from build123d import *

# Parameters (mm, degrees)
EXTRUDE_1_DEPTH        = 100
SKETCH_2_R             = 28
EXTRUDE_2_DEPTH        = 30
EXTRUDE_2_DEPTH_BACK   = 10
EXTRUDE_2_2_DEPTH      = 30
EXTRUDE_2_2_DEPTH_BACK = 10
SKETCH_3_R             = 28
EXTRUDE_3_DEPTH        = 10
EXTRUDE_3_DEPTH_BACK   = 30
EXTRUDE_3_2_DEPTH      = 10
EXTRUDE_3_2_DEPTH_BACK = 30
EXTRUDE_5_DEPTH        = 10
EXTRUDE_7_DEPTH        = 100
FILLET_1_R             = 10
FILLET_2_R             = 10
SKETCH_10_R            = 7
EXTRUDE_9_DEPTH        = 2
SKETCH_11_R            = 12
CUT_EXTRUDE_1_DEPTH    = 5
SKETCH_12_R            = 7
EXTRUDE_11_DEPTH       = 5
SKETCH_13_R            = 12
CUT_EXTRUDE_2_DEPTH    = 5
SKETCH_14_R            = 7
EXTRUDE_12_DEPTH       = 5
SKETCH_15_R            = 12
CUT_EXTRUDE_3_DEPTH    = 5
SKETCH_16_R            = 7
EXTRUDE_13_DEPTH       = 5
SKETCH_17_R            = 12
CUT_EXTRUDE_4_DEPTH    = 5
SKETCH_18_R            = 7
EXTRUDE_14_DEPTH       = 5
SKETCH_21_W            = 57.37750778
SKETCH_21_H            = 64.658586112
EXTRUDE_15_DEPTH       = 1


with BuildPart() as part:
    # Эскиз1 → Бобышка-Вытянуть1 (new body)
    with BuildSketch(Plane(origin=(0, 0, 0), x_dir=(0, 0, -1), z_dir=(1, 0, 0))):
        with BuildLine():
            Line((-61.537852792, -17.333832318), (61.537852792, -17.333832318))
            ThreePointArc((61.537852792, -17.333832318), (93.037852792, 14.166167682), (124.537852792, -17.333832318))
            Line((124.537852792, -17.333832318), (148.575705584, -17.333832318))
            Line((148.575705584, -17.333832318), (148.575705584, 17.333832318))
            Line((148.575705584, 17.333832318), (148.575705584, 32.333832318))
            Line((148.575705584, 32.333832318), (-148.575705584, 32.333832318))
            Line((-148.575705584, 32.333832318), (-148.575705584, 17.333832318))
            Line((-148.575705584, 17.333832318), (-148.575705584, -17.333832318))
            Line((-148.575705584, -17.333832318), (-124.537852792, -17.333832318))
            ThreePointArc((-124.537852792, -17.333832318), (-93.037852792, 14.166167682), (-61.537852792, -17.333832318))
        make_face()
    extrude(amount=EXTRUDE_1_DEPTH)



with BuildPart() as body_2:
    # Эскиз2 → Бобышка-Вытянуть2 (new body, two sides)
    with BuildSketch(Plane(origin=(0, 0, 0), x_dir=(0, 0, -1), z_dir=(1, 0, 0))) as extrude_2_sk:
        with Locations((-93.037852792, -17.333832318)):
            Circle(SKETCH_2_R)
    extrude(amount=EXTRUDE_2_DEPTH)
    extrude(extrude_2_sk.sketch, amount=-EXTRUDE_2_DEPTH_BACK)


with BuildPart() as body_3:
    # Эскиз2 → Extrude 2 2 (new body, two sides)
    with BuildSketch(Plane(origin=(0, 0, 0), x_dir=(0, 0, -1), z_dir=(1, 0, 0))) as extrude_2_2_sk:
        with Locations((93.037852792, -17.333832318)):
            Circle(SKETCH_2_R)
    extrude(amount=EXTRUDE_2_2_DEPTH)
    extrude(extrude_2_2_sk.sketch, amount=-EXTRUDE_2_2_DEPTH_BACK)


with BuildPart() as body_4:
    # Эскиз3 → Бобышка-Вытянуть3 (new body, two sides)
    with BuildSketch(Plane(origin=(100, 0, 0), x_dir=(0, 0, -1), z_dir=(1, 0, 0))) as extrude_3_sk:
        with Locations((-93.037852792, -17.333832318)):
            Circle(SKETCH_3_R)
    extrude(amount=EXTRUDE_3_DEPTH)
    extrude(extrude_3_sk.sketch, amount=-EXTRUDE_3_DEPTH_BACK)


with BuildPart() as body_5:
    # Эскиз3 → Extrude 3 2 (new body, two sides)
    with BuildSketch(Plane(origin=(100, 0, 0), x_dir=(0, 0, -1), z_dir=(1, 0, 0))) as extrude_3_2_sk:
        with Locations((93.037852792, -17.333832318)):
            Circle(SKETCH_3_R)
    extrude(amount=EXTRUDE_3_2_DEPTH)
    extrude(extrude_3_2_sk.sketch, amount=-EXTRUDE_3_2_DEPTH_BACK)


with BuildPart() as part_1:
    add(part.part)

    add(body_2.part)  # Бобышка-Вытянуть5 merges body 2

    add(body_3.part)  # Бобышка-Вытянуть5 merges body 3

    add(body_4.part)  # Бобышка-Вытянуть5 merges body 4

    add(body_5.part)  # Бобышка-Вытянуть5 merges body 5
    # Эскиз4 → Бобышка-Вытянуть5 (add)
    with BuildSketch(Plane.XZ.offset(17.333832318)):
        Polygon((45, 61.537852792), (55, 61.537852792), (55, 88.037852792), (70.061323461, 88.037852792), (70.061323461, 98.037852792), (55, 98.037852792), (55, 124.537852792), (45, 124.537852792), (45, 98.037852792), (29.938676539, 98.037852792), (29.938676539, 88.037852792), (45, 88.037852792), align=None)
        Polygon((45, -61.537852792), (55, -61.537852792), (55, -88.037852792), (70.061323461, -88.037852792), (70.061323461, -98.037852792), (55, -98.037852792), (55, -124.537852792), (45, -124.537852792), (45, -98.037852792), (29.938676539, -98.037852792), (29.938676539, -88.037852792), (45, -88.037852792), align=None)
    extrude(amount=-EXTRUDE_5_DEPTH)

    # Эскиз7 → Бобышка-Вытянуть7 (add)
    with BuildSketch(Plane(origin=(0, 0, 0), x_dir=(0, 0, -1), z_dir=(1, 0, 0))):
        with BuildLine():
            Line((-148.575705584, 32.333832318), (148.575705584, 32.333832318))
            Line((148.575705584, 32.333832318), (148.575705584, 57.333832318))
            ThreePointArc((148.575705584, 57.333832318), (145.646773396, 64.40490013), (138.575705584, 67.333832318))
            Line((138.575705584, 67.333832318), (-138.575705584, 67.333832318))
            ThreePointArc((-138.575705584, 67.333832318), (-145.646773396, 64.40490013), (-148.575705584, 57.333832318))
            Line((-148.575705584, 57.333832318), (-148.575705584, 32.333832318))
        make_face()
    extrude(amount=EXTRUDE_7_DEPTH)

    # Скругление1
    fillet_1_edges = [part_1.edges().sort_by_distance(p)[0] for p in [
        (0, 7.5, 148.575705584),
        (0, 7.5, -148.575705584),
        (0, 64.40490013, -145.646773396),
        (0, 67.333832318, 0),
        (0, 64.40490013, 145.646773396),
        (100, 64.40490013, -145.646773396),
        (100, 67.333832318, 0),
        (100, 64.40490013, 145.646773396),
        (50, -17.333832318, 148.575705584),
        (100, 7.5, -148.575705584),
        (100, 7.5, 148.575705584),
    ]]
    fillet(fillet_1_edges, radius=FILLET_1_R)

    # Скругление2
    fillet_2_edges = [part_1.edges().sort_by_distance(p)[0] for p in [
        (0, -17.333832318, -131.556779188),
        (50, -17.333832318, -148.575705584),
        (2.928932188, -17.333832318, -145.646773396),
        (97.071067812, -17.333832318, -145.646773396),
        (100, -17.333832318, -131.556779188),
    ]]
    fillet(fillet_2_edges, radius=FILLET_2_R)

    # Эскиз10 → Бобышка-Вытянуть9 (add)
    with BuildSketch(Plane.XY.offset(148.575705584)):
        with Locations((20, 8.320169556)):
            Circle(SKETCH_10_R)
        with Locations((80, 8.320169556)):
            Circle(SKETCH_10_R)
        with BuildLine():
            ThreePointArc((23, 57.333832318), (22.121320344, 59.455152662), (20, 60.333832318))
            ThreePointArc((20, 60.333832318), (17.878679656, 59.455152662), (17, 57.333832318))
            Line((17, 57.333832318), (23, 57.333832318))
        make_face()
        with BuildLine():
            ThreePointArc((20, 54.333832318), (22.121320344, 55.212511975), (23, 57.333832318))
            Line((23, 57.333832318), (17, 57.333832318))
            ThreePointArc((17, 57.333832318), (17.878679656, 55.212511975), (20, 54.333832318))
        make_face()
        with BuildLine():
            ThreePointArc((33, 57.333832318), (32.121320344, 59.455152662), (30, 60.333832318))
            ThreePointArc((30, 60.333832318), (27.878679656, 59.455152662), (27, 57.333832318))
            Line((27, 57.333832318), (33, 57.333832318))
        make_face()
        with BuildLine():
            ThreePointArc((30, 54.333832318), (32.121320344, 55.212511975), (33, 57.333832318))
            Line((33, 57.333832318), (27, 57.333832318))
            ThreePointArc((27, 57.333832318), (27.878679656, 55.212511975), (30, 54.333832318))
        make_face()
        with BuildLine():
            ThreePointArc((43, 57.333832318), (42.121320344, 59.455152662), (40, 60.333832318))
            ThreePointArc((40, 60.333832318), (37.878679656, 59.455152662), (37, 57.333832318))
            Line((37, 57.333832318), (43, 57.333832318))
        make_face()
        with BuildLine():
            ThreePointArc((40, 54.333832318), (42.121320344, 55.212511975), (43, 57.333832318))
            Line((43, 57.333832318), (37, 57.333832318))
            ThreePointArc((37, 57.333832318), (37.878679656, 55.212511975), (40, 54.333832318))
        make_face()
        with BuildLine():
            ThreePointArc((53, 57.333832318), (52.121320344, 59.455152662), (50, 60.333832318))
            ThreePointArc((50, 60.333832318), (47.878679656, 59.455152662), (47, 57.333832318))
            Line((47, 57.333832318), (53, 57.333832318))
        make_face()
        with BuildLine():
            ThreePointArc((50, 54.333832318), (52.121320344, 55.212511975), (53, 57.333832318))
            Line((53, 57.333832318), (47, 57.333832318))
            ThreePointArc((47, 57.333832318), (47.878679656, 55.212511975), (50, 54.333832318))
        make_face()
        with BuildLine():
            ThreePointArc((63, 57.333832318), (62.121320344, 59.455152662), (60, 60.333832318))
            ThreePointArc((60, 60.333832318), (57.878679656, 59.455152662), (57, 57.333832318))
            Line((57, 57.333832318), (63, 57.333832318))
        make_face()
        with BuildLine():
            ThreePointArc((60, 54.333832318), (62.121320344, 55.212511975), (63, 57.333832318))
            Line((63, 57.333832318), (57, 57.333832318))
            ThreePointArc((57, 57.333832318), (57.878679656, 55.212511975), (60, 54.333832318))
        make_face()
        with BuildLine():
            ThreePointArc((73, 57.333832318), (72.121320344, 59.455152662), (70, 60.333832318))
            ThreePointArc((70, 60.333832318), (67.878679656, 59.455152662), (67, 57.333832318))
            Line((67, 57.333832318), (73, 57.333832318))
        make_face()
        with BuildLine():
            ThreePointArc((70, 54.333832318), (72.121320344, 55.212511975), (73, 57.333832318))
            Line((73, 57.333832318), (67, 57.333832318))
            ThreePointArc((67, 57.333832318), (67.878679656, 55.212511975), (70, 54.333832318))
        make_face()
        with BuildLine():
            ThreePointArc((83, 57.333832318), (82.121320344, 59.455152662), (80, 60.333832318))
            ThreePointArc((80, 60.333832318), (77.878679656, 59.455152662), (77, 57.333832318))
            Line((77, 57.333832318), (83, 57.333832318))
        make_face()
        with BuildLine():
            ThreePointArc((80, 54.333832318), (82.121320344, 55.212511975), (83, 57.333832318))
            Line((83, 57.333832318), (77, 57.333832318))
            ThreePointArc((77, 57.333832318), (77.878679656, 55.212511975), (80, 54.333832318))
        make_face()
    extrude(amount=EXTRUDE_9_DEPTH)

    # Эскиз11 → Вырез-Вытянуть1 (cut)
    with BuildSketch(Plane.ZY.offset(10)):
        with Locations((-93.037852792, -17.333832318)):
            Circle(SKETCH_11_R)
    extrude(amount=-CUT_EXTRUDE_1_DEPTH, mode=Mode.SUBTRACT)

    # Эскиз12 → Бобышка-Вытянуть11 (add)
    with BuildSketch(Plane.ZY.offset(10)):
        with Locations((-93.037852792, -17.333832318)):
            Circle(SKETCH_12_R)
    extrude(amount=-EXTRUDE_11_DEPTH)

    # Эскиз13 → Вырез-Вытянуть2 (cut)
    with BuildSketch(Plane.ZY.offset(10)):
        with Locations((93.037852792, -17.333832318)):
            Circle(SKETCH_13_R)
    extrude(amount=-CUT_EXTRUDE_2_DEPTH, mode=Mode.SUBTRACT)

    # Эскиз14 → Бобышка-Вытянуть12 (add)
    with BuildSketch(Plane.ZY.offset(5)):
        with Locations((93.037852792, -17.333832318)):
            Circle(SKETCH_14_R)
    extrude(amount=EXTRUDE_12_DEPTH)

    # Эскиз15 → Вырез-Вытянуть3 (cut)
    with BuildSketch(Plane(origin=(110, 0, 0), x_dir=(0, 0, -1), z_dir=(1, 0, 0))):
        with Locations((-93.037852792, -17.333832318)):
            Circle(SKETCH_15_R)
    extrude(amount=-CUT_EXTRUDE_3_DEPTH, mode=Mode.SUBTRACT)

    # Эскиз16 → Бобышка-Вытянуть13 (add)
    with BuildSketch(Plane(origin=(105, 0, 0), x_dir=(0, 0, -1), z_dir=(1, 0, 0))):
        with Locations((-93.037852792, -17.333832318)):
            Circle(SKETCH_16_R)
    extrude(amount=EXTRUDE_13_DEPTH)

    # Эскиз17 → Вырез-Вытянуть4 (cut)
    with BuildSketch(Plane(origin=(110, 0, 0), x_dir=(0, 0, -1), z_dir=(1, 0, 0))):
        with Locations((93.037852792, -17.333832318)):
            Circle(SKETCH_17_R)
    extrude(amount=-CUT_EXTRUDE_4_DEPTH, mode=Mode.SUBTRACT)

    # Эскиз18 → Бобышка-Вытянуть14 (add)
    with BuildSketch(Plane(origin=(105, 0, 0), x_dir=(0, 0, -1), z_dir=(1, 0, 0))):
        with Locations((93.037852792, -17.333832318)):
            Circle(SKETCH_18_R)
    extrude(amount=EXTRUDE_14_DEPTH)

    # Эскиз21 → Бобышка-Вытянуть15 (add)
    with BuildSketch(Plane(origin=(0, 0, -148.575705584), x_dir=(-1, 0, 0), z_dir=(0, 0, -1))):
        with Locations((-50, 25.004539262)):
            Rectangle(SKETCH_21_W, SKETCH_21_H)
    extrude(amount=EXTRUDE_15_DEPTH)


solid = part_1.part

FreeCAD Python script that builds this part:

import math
import FreeCAD as App
import Part
import Sketcher


def edges_at(feature, points):
    """Names of the edges that pass closest to the given points."""
    edges = feature.Shape.Edges
    near = lambda p: min(range(len(edges)), key=lambda i: edges[i].distToShape(Part.Vertex(*p))[0])
    return sorted({f"Edge{near(p) + 1}" for p in points})


def add_polygon(sketch, points):
    """Adds a closed chain of lines whose ends are joined by coincident constraints."""
    first, n = sketch.GeometryCount, len(points)
    for a, b in zip(points, points[1:] + points[:1]):
        sketch.addGeometry(Part.LineSegment(App.Vector(*a, 0), App.Vector(*b, 0)), False)
    for i in range(n):
        sketch.addConstraint(Sketcher.Constraint("Coincident", first + i, 2, first + (i + 1) % n, 1))

doc = App.newDocument("Part")
body = doc.addObject("PartDesign::Body", "Body")

# Sketch on YZ plane
sketch1 = body.newObject("Sketcher::SketchObject", "Sketch")
sketch1.AttachmentSupport = (doc.getObject("YZ_Plane"), [""])
sketch1.MapMode = "FlatFace"
sketch1.addGeometry([
    Part.LineSegment(App.Vector(-17.333832, 61.537853, 0), App.Vector(-17.333832, -61.537853, 0)),  # 0
    Part.ArcOfCircle(Part.Circle(App.Vector(-17.333832, -93.037853, 0), App.Vector(0, 0, 1), 31.5), math.radians(-90), math.radians(90)),  # 1
    Part.LineSegment(App.Vector(-17.333832, -124.537853, 0), App.Vector(-17.333832, -148.575706, 0)),  # 2
    Part.LineSegment(App.Vector(-17.333832, -148.575706, 0), App.Vector(32.333832, -148.575706, 0)),  # 3
    Part.LineSegment(App.Vector(32.333832, -148.575706, 0), App.Vector(32.333832, 148.575706, 0)),  # 4
    Part.LineSegment(App.Vector(32.333832, 148.575706, 0), App.Vector(-17.333832, 148.575706, 0)),  # 5
    Part.LineSegment(App.Vector(-17.333832, 148.575706, 0), App.Vector(-17.333832, 124.537853, 0)),  # 6
    Part.ArcOfCircle(Part.Circle(App.Vector(-17.333832, 93.037853, 0), App.Vector(0, 0, 1), 31.5), math.radians(-90), math.radians(90)),  # 7
], False)
sketch1.addConstraint([
    Sketcher.Constraint("Coincident", 0, 2, 1, 2),
    Sketcher.Constraint("Coincident", 1, 1, 2, 1),
    Sketcher.Constraint("Coincident", 2, 2, 3, 1),
    Sketcher.Constraint("Coincident", 3, 2, 4, 1),
    Sketcher.Constraint("Coincident", 4, 2, 5, 1),
    Sketcher.Constraint("Coincident", 5, 2, 6, 1),
    Sketcher.Constraint("Coincident", 6, 2, 7, 2),
    Sketcher.Constraint("Coincident", 7, 1, 0, 1),
    Sketcher.Constraint("Vertical", 0),
    Sketcher.Constraint("Vertical", 2),
    Sketcher.Constraint("Horizontal", 3),
    Sketcher.Constraint("Vertical", 4),
    Sketcher.Constraint("Horizontal", 5),
    Sketcher.Constraint("Vertical", 6),
    Sketcher.Constraint("Equal", 1, 7),
    Sketcher.Constraint("Symmetric", 1, 3, 7, 3, -1),
    Sketcher.Constraint("Symmetric", 2, 2, 5, 2, -1),
    Sketcher.Constraint("Vertical", 7, 3, 0, 2),
    Sketcher.Constraint("Vertical", 0, 2, 1, 1),
    Sketcher.Constraint("Radius", 1, 31.5),
    Sketcher.Constraint("DistanceY", 4, 1, 4, 2, 297.151411),
    Sketcher.Constraint("DistanceX", 3, 1, 3, 2, 49.667665),
    Sketcher.Constraint("DistanceY", 0, 2, 0, 1, 123.075706),
    Sketcher.Constraint("DistanceX", 1, 3, -1, 1, 17.333832),
])
pad1 = body.newObject("PartDesign::Pad", "Pad")
pad1.Profile = sketch1
pad1.Length = 100
body2 = doc.addObject("PartDesign::Body", "Body001")

# Sketch on YZ plane
sketch2 = body2.newObject("Sketcher::SketchObject", "Sketch001")
sketch2.AttachmentSupport = (doc.getObject("YZ_Plane001"), [""])
sketch2.MapMode = "FlatFace"
sketch2.addGeometry(Part.Circle(App.Vector(-17.333832, 93.037853, 0), App.Vector(0, 0, 1), 28), False)
sketch2.addConstraint([
    Sketcher.Constraint("Diameter", 0, 56.0),
    Sketcher.Constraint("DistanceX", 0, 3, -1, 1, 17.333832),
    Sketcher.Constraint("DistanceY", -1, 1, 0, 3, 93.037853),
])
pad2 = body2.newObject("PartDesign::Pad", "Pad001")
pad2.Profile = sketch2
pad2.Type = "TwoLengths"
pad2.Length = 30
pad2.Length2 = 10
body3 = doc.addObject("PartDesign::Body", "Body002")

# Sketch on YZ plane
sketch3 = body3.newObject("Sketcher::SketchObject", "Sketch002")
sketch3.AttachmentSupport = (doc.getObject("YZ_Plane002"), [""])
sketch3.MapMode = "FlatFace"
sketch3.addGeometry(Part.Circle(App.Vector(-17.333832, -93.037853, 0), App.Vector(0, 0, 1), 28), False)
sketch3.addConstraint([
    Sketcher.Constraint("Diameter", 0, 56.0),
    Sketcher.Constraint("DistanceX", 0, 3, -1, 1, 17.333832),
    Sketcher.Constraint("DistanceY", 0, 3, -1, 1, 93.037853),
])
pad3 = body3.newObject("PartDesign::Pad", "Pad002")
pad3.Profile = sketch3
pad3.Type = "TwoLengths"
pad3.Length = 30
pad3.Length2 = 10
body4 = doc.addObject("PartDesign::Body", "Body003")

# Sketch on YZ plane
sketch4 = body4.newObject("Sketcher::SketchObject", "Sketch003")
sketch4.AttachmentSupport = (doc.getObject("YZ_Plane003"), [""])
sketch4.MapMode = "FlatFace"
sketch4.AttachmentOffset = App.Placement(App.Vector(0, 0, 100), App.Rotation())
sketch4.addGeometry(Part.Circle(App.Vector(-17.333832, 93.037853, 0), App.Vector(0, 0, 1), 28), False)
sketch4.addConstraint([
    Sketcher.Constraint("Diameter", 0, 56.0),
    Sketcher.Constraint("DistanceX", 0, 3, -1, 1, 17.333832),
    Sketcher.Constraint("DistanceY", -1, 1, 0, 3, 93.037853),
])
pad4 = body4.newObject("PartDesign::Pad", "Pad003")
pad4.Profile = sketch4
pad4.Type = "TwoLengths"
pad4.Length = 10
pad4.Length2 = 30
body5 = doc.addObject("PartDesign::Body", "Body004")

# Sketch on YZ plane
sketch5 = body5.newObject("Sketcher::SketchObject", "Sketch004")
sketch5.AttachmentSupport = (doc.getObject("YZ_Plane004"), [""])
sketch5.MapMode = "FlatFace"
sketch5.AttachmentOffset = App.Placement(App.Vector(0, 0, 100), App.Rotation())
sketch5.addGeometry(Part.Circle(App.Vector(-17.333832, -93.037853, 0), App.Vector(0, 0, 1), 28), False)
sketch5.addConstraint([
    Sketcher.Constraint("Diameter", 0, 56.0),
    Sketcher.Constraint("DistanceX", 0, 3, -1, 1, 17.333832),
    Sketcher.Constraint("DistanceY", 0, 3, -1, 1, 93.037853),
])
pad5 = body5.newObject("PartDesign::Pad", "Pad004")
pad5.Profile = sketch5
pad5.Type = "TwoLengths"
pad5.Length = 10
pad5.Length2 = 30
body.AllowCompound = True
doc.recompute()

boolean = body.newObject("PartDesign::Boolean", "Boolean")
boolean.Type = "Fuse"
boolean.addObjects([body2])
doc.recompute()

boolean2 = body.newObject("PartDesign::Boolean", "Boolean001")
boolean2.Type = "Fuse"
boolean2.addObjects([body3])
doc.recompute()

boolean3 = body.newObject("PartDesign::Boolean", "Boolean002")
boolean3.Type = "Fuse"
boolean3.addObjects([body4])
doc.recompute()

boolean4 = body.newObject("PartDesign::Boolean", "Boolean003")
boolean4.Type = "Fuse"
boolean4.addObjects([body5])

# Sketch on XZ plane
sketch6 = body.newObject("Sketcher::SketchObject", "Sketch005")
sketch6.AttachmentSupport = (doc.getObject("XZ_Plane"), [""])
sketch6.MapMode = "FlatFace"
sketch6.AttachmentOffset = App.Placement(App.Vector(0, 0, 17.333832), App.Rotation())
add_polygon(sketch6, [(45, 61.537853), (55, 61.537853), (55, 88.037853), (70.061323, 88.037853), (70.061323, 98.037853), (55, 98.037853), (55, 124.537853), (45, 124.537853), (45, 98.037853), (29.938677, 98.037853), (29.938677, 88.037853), (45, 88.037853)])  # lines 0-11
add_polygon(sketch6, [(55, -61.537853), (45, -61.537853), (45, -88.037853), (29.938677, -88.037853), (29.938677, -98.037853), (45, -98.037853), (45, -124.537853), (55, -124.537853), (55, -98.037853), (70.061323, -98.037853), (70.061323, -88.037853), (55, -88.037853)])  # lines 12-23
sketch6.addConstraint([
    Sketcher.Constraint("Horizontal", 0),
    Sketcher.Constraint("Vertical", 1),
    Sketcher.Constraint("Horizontal", 2),
    Sketcher.Constraint("Vertical", 3),
    Sketcher.Constraint("Horizontal", 4),
    Sketcher.Constraint("Vertical", 5),
    Sketcher.Constraint("Horizontal", 6),
    Sketcher.Constraint("Vertical", 7),
    Sketcher.Constraint("Horizontal", 8),
    Sketcher.Constraint("Vertical", 9),
    Sketcher.Constraint("Horizontal", 10),
    Sketcher.Constraint("Vertical", 11),
    Sketcher.Constraint("Horizontal", 12),
    Sketcher.Constraint("Vertical", 13),
    Sketcher.Constraint("Horizontal", 14),
    Sketcher.Constraint("Vertical", 15),
    Sketcher.Constraint("Horizontal", 16),
    Sketcher.Constraint("Vertical", 17),
    Sketcher.Constraint("Horizontal", 18),
    Sketcher.Constraint("Vertical", 19),
    Sketcher.Constraint("Horizontal", 20),
    Sketcher.Constraint("Vertical", 21),
    Sketcher.Constraint("Horizontal", 22),
    Sketcher.Constraint("Vertical", 23),
    Sketcher.Constraint("Symmetric", 11, 2, 12, 2, -1),
    Sketcher.Constraint("Symmetric", 9, 2, 14, 2, -1),
    Sketcher.Constraint("Symmetric", 7, 2, 16, 2, -1),
    Sketcher.Constraint("Symmetric", 5, 2, 18, 2, -1),
    Sketcher.Constraint("Symmetric", 3, 2, 20, 2, -1),
    Sketcher.Constraint("Symmetric", 1, 2, 22, 2, -1),
    Sketcher.Constraint("Horizontal", 4, 2, 7, 2),
    Sketcher.Constraint("Horizontal", 2, 2, 9, 2),
    Sketcher.Constraint("Vertical", 1, 2, 4, 2),
    Sketcher.Constraint("Vertical", 7, 2, 10, 2),
    Sketcher.Constraint("Equal", 4, 8),
    Sketcher.Constraint("Equal", 18, 3),
    Sketcher.Constraint("Equal", 1, 5),
    Sketcher.Constraint("DistanceX", 0, 1, 0, 2, 10.0),
    Sketcher.Constraint("DistanceY", 1, 1, 1, 2, 26.5),
    Sketcher.Constraint("DistanceX", -1, 1, 0, 2, 55.0),
    Sketcher.Constraint("DistanceX", 2, 1, 2, 2, 15.061323),
    Sketcher.Constraint("DistanceY", -1, 1, 0, 2, 61.537853),
])
pad6 = body.newObject("PartDesign::Pad", "Pad005")
pad6.Profile = sketch6
pad6.Length = 10
pad6.Reversed = True

# Sketch on YZ plane
sketch7 = body.newObject("Sketcher::SketchObject", "Sketch006")
sketch7.AttachmentSupport = (doc.getObject("YZ_Plane"), [""])
sketch7.MapMode = "FlatFace"
sketch7.addGeometry([
    Part.LineSegment(App.Vector(32.333832, 148.575706, 0), App.Vector(32.333832, -148.575706, 0)),  # 0
    Part.LineSegment(App.Vector(32.333832, -148.575706, 0), App.Vector(57.333832, -148.575706, 0)),  # 1
    Part.ArcOfCircle(Part.Circle(App.Vector(57.333832, -138.575706, 0), App.Vector(0, 0, 1), 10), math.radians(-90), math.radians(0)),  # 2
    Part.LineSegment(App.Vector(67.333832, -138.575706, 0), App.Vector(67.333832, 138.575706, 0)),  # 3
    Part.ArcOfCircle(Part.Circle(App.Vector(57.333832, 138.575706, 0), App.Vector(0, 0, 1), 10), math.radians(0), math.radians(90)),  # 4
    Part.LineSegment(App.Vector(57.333832, 148.575706, 0), App.Vector(32.333832, 148.575706, 0)),  # 5
], False)
sketch7.addConstraint([
    Sketcher.Constraint("Coincident", 0, 2, 1, 1),
    Sketcher.Constraint("Tangent", 1, 2, 2, 1),
    Sketcher.Constraint("Tangent", 2, 2, 3, 1),
    Sketcher.Constraint("Tangent", 3, 2, 4, 1),
    Sketcher.Constraint("Tangent", 4, 2, 5, 1),
    Sketcher.Constraint("Coincident", 5, 2, 0, 1),
    Sketcher.Constraint("Vertical", 0),
    Sketcher.Constraint("Horizontal", 1),
    Sketcher.Constraint("Vertical", 3),
    Sketcher.Constraint("Horizontal", 5),
    Sketcher.Constraint("Equal", 2, 4),
    Sketcher.Constraint("Radius", 2, 10.0),
    Sketcher.Constraint("DistanceX", 1, 1, 1, 2, 25.0),
    Sketcher.Constraint("DistanceY", 0, 2, 0, 1, 297.151411),
    Sketcher.Constraint("DistanceX", -1, 1, 2, 3, 57.333832),
    Sketcher.Constraint("DistanceY", 2, 3, -1, 1, 138.575706),
])
pad7 = body.newObject("PartDesign::Pad", "Pad006")
pad7.Profile = sketch7
pad7.Length = 100
doc.recompute()

fillet = body.newObject("PartDesign::Fillet", "Fillet")
fillet.Base = (pad7, edges_at(pad7, [
    (0, 20, 148.576),
    (0, 20, -148.576),
    (0, 64.405, -145.647),
    (0, 67.334, 0),
    (0, 64.405, 145.647),
    (100, 64.405, -145.647),
    (100, 67.334, 0),
    (100, 64.405, 145.647),
    (50, -17.334, 148.576),
    (100, 20, -148.576),
    (100, 20, 148.576),
]))
fillet.Radius = 10
doc.recompute()

fillet2 = body.newObject("PartDesign::Fillet", "Fillet001")
fillet2.Base = (fillet, edges_at(fillet, [
    (0, -17.334, -131.557),
    (50, -17.334, -148.576),
    (2.929, -17.334, -145.647),
    (97.071, -17.334, -145.647),
    (100, -17.334, -131.557),
]))
fillet2.Radius = 10

# Sketch on XY plane
sketch8 = body.newObject("Sketcher::SketchObject", "Sketch007")
sketch8.AttachmentSupport = (doc.getObject("XY_Plane"), [""])
sketch8.MapMode = "FlatFace"
sketch8.AttachmentOffset = App.Placement(App.Vector(0, 0, 148.575706), App.Rotation())
sketch8.addGeometry([
    Part.Circle(App.Vector(20, 8.32017, 0), App.Vector(0, 0, 1), 7),  # 0
    Part.Circle(App.Vector(80, 8.32017, 0), App.Vector(0, 0, 1), 7),  # 1
    Part.ArcOfCircle(Part.Circle(App.Vector(20, 57.333832, 0), App.Vector(0, 0, 1), 3), math.radians(0), math.radians(90)),  # 2
    Part.ArcOfCircle(Part.Circle(App.Vector(20, 57.333832, 0), App.Vector(0, 0, 1), 3), math.radians(90), math.radians(180)),  # 3
    Part.ArcOfCircle(Part.Circle(App.Vector(20, 57.333832, 0), App.Vector(0, 0, 1), 3), math.radians(180), math.radians(270)),  # 4
    Part.ArcOfCircle(Part.Circle(App.Vector(20, 57.333832, 0), App.Vector(0, 0, 1), 3), math.radians(-90), math.radians(0)),  # 5
    Part.ArcOfCircle(Part.Circle(App.Vector(30, 57.333832, 0), App.Vector(0, 0, 1), 3), math.radians(0), math.radians(90)),  # 6
    Part.ArcOfCircle(Part.Circle(App.Vector(30, 57.333832, 0), App.Vector(0, 0, 1), 3), math.radians(90), math.radians(180)),  # 7
    Part.ArcOfCircle(Part.Circle(App.Vector(30, 57.333832, 0), App.Vector(0, 0, 1), 3), math.radians(180), math.radians(270)),  # 8
    Part.ArcOfCircle(Part.Circle(App.Vector(30, 57.333832, 0), App.Vector(0, 0, 1), 3), math.radians(-90), math.radians(0)),  # 9
    Part.ArcOfCircle(Part.Circle(App.Vector(40, 57.333832, 0), App.Vector(0, 0, 1), 3), math.radians(0), math.radians(90)),  # 10
    Part.ArcOfCircle(Part.Circle(App.Vector(40, 57.333832, 0), App.Vector(0, 0, 1), 3), math.radians(90), math.radians(180)),  # 11
    Part.ArcOfCircle(Part.Circle(App.Vector(40, 57.333832, 0), App.Vector(0, 0, 1), 3), math.radians(180), math.radians(270)),  # 12
    Part.ArcOfCircle(Part.Circle(App.Vector(40, 57.333832, 0), App.Vector(0, 0, 1), 3), math.radians(-90), math.radians(0)),  # 13
    Part.ArcOfCircle(Part.Circle(App.Vector(50, 57.333832, 0), App.Vector(0, 0, 1), 3), math.radians(0), math.radians(90)),  # 14
    Part.ArcOfCircle(Part.Circle(App.Vector(50, 57.333832, 0), App.Vector(0, 0, 1), 3), math.radians(90), math.radians(180)),  # 15
    Part.ArcOfCircle(Part.Circle(App.Vector(50, 57.333832, 0), App.Vector(0, 0, 1), 3), math.radians(180), math.radians(270)),  # 16
    Part.ArcOfCircle(Part.Circle(App.Vector(50, 57.333832, 0), App.Vector(0, 0, 1), 3), math.radians(-90), math.radians(0)),  # 17
    Part.ArcOfCircle(Part.Circle(App.Vector(60, 57.333832, 0), App.Vector(0, 0, 1), 3), math.radians(0), math.radians(90)),  # 18
    Part.ArcOfCircle(Part.Circle(App.Vector(60, 57.333832, 0), App.Vector(0, 0, 1), 3), math.radians(90), math.radians(180)),  # 19
    Part.ArcOfCircle(Part.Circle(App.Vector(60, 57.333832, 0), App.Vector(0, 0, 1), 3), math.radians(180), math.radians(270)),  # 20
    Part.ArcOfCircle(Part.Circle(App.Vector(60, 57.333832, 0), App.Vector(0, 0, 1), 3), math.radians(-90), math.radians(0)),  # 21
    Part.ArcOfCircle(Part.Circle(App.Vector(70, 57.333832, 0), App.Vector(0, 0, 1), 3), math.radians(0), math.radians(90)),  # 22
    Part.ArcOfCircle(Part.Circle(App.Vector(70, 57.333832, 0), App.Vector(0, 0, 1), 3), math.radians(90), math.radians(180)),  # 23
    Part.ArcOfCircle(Part.Circle(App.Vector(70, 57.333832, 0), App.Vector(0, 0, 1), 3), math.radians(180), math.radians(270)),  # 24
    Part.ArcOfCircle(Part.Circle(App.Vector(70, 57.333832, 0), App.Vector(0, 0, 1), 3), math.radians(-90), math.radians(0)),  # 25
    Part.ArcOfCircle(Part.Circle(App.Vector(80, 57.333832, 0), App.Vector(0, 0, 1), 3), math.radians(0), math.radians(90)),  # 26
    Part.ArcOfCircle(Part.Circle(App.Vector(80, 57.333832, 0), App.Vector(0, 0, 1), 3), math.radians(90), math.radians(180)),  # 27
    Part.ArcOfCircle(Part.Circle(App.Vector(80, 57.333832, 0), App.Vector(0, 0, 1), 3), math.radians(180), math.radians(270)),  # 28
    Part.ArcOfCircle(Part.Circle(App.Vector(80, 57.333832, 0), App.Vector(0, 0, 1), 3), math.radians(-90), math.radians(0)),  # 29
], False)
sketch8.addConstraint([
    Sketcher.Constraint("Tangent", 2, 2, 3, 1),
    Sketcher.Constraint("Tangent", 3, 2, 4, 1),
    Sketcher.Constraint("Tangent", 4, 2, 5, 1),
    Sketcher.Constraint("Tangent", 5, 2, 2, 1),
    Sketcher.Constraint("Tangent", 6, 2, 7, 1),
    Sketcher.Constraint("Tangent", 7, 2, 8, 1),
    Sketcher.Constraint("Tangent", 8, 2, 9, 1),
    Sketcher.Constraint("Tangent", 9, 2, 6, 1),
    Sketcher.Constraint("Tangent", 10, 2, 11, 1),
    Sketcher.Constraint("Tangent", 11, 2, 12, 1),
    Sketcher.Constraint("Tangent", 12, 2, 13, 1),
    Sketcher.Constraint("Tangent", 13, 2, 10, 1),
    Sketcher.Constraint("Tangent", 14, 2, 15, 1),
    Sketcher.Constraint("Tangent", 15, 2, 16, 1),
    Sketcher.Constraint("Tangent", 16, 2, 17, 1),
    Sketcher.Constraint("Tangent", 17, 2, 14, 1),
    Sketcher.Constraint("Tangent", 18, 2, 19, 1),
    Sketcher.Constraint("Tangent", 19, 2, 20, 1),
    Sketcher.Constraint("Tangent", 20, 2, 21, 1),
    Sketcher.Constraint("Tangent", 21, 2, 18, 1),
    Sketcher.Constraint("Tangent", 22, 2, 23, 1),
    Sketcher.Constraint("Tangent", 23, 2, 24, 1),
    Sketcher.Constraint("Tangent", 24, 2, 25, 1),
    Sketcher.Constraint("Tangent", 25, 2, 22, 1),
    Sketcher.Constraint("Tangent", 26, 2, 27, 1),
    Sketcher.Constraint("Tangent", 27, 2, 28, 1),
    Sketcher.Constraint("Tangent", 28, 2, 29, 1),
    Sketcher.Constraint("Tangent", 29, 2, 26, 1),
    Sketcher.Constraint("Equal", 0, 1),
    Sketcher.Constraint("Equal", 2, 3),
    Sketcher.Constraint("Equal", 5, 6),
    Sketcher.Constraint("Equal", 6, 7),
    Sketcher.Constraint("Equal", 9, 10),
    Sketcher.Constraint("Equal", 10, 11),
    Sketcher.Constraint("Equal", 13, 14),
    Sketcher.Constraint("Equal", 14, 15),
    Sketcher.Constraint("Equal", 17, 18),
    Sketcher.Constraint("Equal", 18, 19),
    Sketcher.Constraint("Equal", 21, 22),
    Sketcher.Constraint("Equal", 22, 23),
    Sketcher.Constraint("Equal", 25, 26),
    Sketcher.Constraint("Equal", 26, 27),
    Sketcher.Constraint("Horizontal", 0, 3, 1, 3),
    Sketcher.Constraint("Horizontal", 5, 3, 6, 3),
    Sketcher.Constraint("Horizontal", 9, 3, 10, 3),
    Sketcher.Constraint("Horizontal", 13, 3, 14, 3),
    Sketcher.Constraint("Horizontal", 17, 3, 18, 3),
    Sketcher.Constraint("Horizontal", 21, 3, 22, 3),
    Sketcher.Constraint("Horizontal", 25, 3, 26, 3),
    Sketcher.Constraint("Horizontal", 29, 3, 3, 2),
    Sketcher.Constraint("Horizontal", 3, 2, 5, 2),
    Sketcher.Constraint("Horizontal", 5, 2, 7, 2),
    Sketcher.Constraint("Horizontal", 7, 2, 9, 2),
    Sketcher.Constraint("Horizontal", 9, 2, 11, 2),
    Sketcher.Constraint("Horizontal", 11, 2, 13, 2),
    Sketcher.Constraint("Horizontal", 13, 2, 15, 2),
    Sketcher.Constraint("Horizontal", 15, 2, 17, 2),
    Sketcher.Constraint("Horizontal", 17, 2, 19, 2),
    Sketcher.Constraint("Horizontal", 19, 2, 21, 2),
    Sketcher.Constraint("Horizontal", 21, 2, 23, 2),
    Sketcher.Constraint("Horizontal", 23, 2, 25, 2),
    Sketcher.Constraint("Horizontal", 25, 2, 27, 2),
    Sketcher.Constraint("Horizontal", 27, 2, 29, 2),
    Sketcher.Constraint("Vertical", 0, 3, 2, 3),
    Sketcher.Constraint("Vertical", 1, 3, 26, 3),
    Sketcher.Constraint("Vertical", 5, 3, 2, 2),
    Sketcher.Constraint("Vertical", 2, 2, 4, 2),
    Sketcher.Constraint("Vertical", 9, 3, 6, 2),
    Sketcher.Constraint("Vertical", 6, 2, 8, 2),
    Sketcher.Constraint("Vertical", 13, 3, 10, 2),
    Sketcher.Constraint("Vertical", 10, 2, 12, 2),
    Sketcher.Constraint("Vertical", 17, 3, 14, 2),
    Sketcher.Constraint("Vertical", 14, 2, 16, 2),
    Sketcher.Constraint("Vertical", 21, 3, 18, 2),
    Sketcher.Constraint("Vertical", 18, 2, 20, 2),
    Sketcher.Constraint("Vertical", 25, 3, 22, 2),
    Sketcher.Constraint("Vertical", 22, 2, 24, 2),
    Sketcher.Constraint("Vertical", 29, 3, 26, 2),
    Sketcher.Constraint("Vertical", 26, 2, 28, 2),
    Sketcher.Constraint("Diameter", 0, 14.0),
    Sketcher.Constraint("Radius", 2, 3.0),
    Sketcher.Constraint("DistanceX", -1, 1, 0, 3, 20.0),
    Sketcher.Constraint("DistanceX", -1, 1, 1, 3, 80.0),
    Sketcher.Constraint("DistanceX", -1, 1, 6, 3, 30.0),
    Sketcher.Constraint("DistanceX", -1, 1, 10, 3, 40.0),
    Sketcher.Constraint("DistanceX", -1, 1, 14, 3, 50.0),
    Sketcher.Constraint("DistanceX", -1, 1, 18, 3, 60.0),
    Sketcher.Constraint("DistanceX", -1, 1, 22, 3, 70.0),
    Sketcher.Constraint("DistanceY", -1, 1, 0, 3, 8.32017),
    Sketcher.Constraint("DistanceY", -1, 1, 2, 3, 57.333832),
])
pad8 = body.newObject("PartDesign::Pad", "Pad007")
pad8.Profile = sketch8
pad8.Length = 2

# Sketch on YZ plane
sketch9 = body.newObject("Sketcher::SketchObject", "Sketch008")
sketch9.AttachmentSupport = (doc.getObject("YZ_Plane"), [""])
sketch9.MapMode = "FlatFace"
sketch9.AttachmentOffset = App.Placement(App.Vector(0, 0, -10), App.Rotation())
sketch9.addGeometry(Part.Circle(App.Vector(-17.333832, -93.037853, 0), App.Vector(0, 0, 1), 12), False)
sketch9.addConstraint([
    Sketcher.Constraint("Diameter", 0, 24.0),
    Sketcher.Constraint("DistanceX", 0, 3, -1, 1, 17.333832),
    Sketcher.Constraint("DistanceY", 0, 3, -1, 1, 93.037853),
])
pocket1 = body.newObject("PartDesign::Pocket", "Pocket")
pocket1.Profile = sketch9
pocket1.Length = 5
pocket1.Reversed = True

# Sketch on YZ plane
sketch10 = body.newObject("Sketcher::SketchObject", "Sketch009")
sketch10.AttachmentSupport = (doc.getObject("YZ_Plane"), [""])
sketch10.MapMode = "FlatFace"
sketch10.AttachmentOffset = App.Placement(App.Vector(0, 0, -10), App.Rotation())
sketch10.addGeometry(Part.Circle(App.Vector(-17.333832, -93.037853, 0), App.Vector(0, 0, 1), 7), False)
sketch10.addConstraint([
    Sketcher.Constraint("Diameter", 0, 14.0),
    Sketcher.Constraint("DistanceX", 0, 3, -1, 1, 17.333832),
    Sketcher.Constraint("DistanceY", 0, 3, -1, 1, 93.037853),
])
pad9 = body.newObject("PartDesign::Pad", "Pad008")
pad9.Profile = sketch10
pad9.Length = 5

# Sketch on YZ plane
sketch11 = body.newObject("Sketcher::SketchObject", "Sketch010")
sketch11.AttachmentSupport = (doc.getObject("YZ_Plane"), [""])
sketch11.MapMode = "FlatFace"
sketch11.AttachmentOffset = App.Placement(App.Vector(0, 0, -10), App.Rotation())
sketch11.addGeometry(Part.Circle(App.Vector(-17.333832, 93.037853, 0), App.Vector(0, 0, 1), 12), False)
sketch11.addConstraint([
    Sketcher.Constraint("Diameter", 0, 24.0),
    Sketcher.Constraint("DistanceX", 0, 3, -1, 1, 17.333832),
    Sketcher.Constraint("DistanceY", -1, 1, 0, 3, 93.037853),
])
pocket2 = body.newObject("PartDesign::Pocket", "Pocket001")
pocket2.Profile = sketch11
pocket2.Length = 5
pocket2.Reversed = True

# Sketch on YZ plane
sketch12 = body.newObject("Sketcher::SketchObject", "Sketch011")
sketch12.AttachmentSupport = (doc.getObject("YZ_Plane"), [""])
sketch12.MapMode = "FlatFace"
sketch12.AttachmentOffset = App.Placement(App.Vector(0, 0, -5), App.Rotation())
sketch12.addGeometry(Part.Circle(App.Vector(-17.333832, 93.037853, 0), App.Vector(0, 0, 1), 7), False)
sketch12.addConstraint([
    Sketcher.Constraint("Diameter", 0, 14.0),
    Sketcher.Constraint("DistanceX", 0, 3, -1, 1, 17.333832),
    Sketcher.Constraint("DistanceY", -1, 1, 0, 3, 93.037853),
])
pad10 = body.newObject("PartDesign::Pad", "Pad009")
pad10.Profile = sketch12
pad10.Length = 5
pad10.Reversed = True

# Sketch on YZ plane
sketch13 = body.newObject("Sketcher::SketchObject", "Sketch012")
sketch13.AttachmentSupport = (doc.getObject("YZ_Plane"), [""])
sketch13.MapMode = "FlatFace"
sketch13.AttachmentOffset = App.Placement(App.Vector(0, 0, 110), App.Rotation())
sketch13.addGeometry(Part.Circle(App.Vector(-17.333832, 93.037853, 0), App.Vector(0, 0, 1), 12), False)
sketch13.addConstraint([
    Sketcher.Constraint("Diameter", 0, 24.0),
    Sketcher.Constraint("DistanceX", 0, 3, -1, 1, 17.333832),
    Sketcher.Constraint("DistanceY", -1, 1, 0, 3, 93.037853),
])
pocket3 = body.newObject("PartDesign::Pocket", "Pocket002")
pocket3.Profile = sketch13
pocket3.Length = 5

# Sketch on YZ plane
sketch14 = body.newObject("Sketcher::SketchObject", "Sketch013")
sketch14.AttachmentSupport = (doc.getObject("YZ_Plane"), [""])
sketch14.MapMode = "FlatFace"
sketch14.AttachmentOffset = App.Placement(App.Vector(0, 0, 105), App.Rotation())
sketch14.addGeometry(Part.Circle(App.Vector(-17.333832, 93.037853, 0), App.Vector(0, 0, 1), 7), False)
sketch14.addConstraint([
    Sketcher.Constraint("Diameter", 0, 14.0),
    Sketcher.Constraint("DistanceX", 0, 3, -1, 1, 17.333832),
    Sketcher.Constraint("DistanceY", -1, 1, 0, 3, 93.037853),
])
pad11 = body.newObject("PartDesign::Pad", "Pad010")
pad11.Profile = sketch14
pad11.Length = 5

# Sketch on YZ plane
sketch15 = body.newObject("Sketcher::SketchObject", "Sketch014")
sketch15.AttachmentSupport = (doc.getObject("YZ_Plane"), [""])
sketch15.MapMode = "FlatFace"
sketch15.AttachmentOffset = App.Placement(App.Vector(0, 0, 110), App.Rotation())
sketch15.addGeometry(Part.Circle(App.Vector(-17.333832, -93.037853, 0), App.Vector(0, 0, 1), 12), False)
sketch15.addConstraint([
    Sketcher.Constraint("Diameter", 0, 24.0),
    Sketcher.Constraint("DistanceX", 0, 3, -1, 1, 17.333832),
    Sketcher.Constraint("DistanceY", 0, 3, -1, 1, 93.037853),
])
pocket4 = body.newObject("PartDesign::Pocket", "Pocket003")
pocket4.Profile = sketch15
pocket4.Length = 5

# Sketch on YZ plane
sketch16 = body.newObject("Sketcher::SketchObject", "Sketch015")
sketch16.AttachmentSupport = (doc.getObject("YZ_Plane"), [""])
sketch16.MapMode = "FlatFace"
sketch16.AttachmentOffset = App.Placement(App.Vector(0, 0, 105), App.Rotation())
sketch16.addGeometry(Part.Circle(App.Vector(-17.333832, -93.037853, 0), App.Vector(0, 0, 1), 7), False)
sketch16.addConstraint([
    Sketcher.Constraint("Diameter", 0, 14.0),
    Sketcher.Constraint("DistanceX", 0, 3, -1, 1, 17.333832),
    Sketcher.Constraint("DistanceY", 0, 3, -1, 1, 93.037853),
])
pad12 = body.newObject("PartDesign::Pad", "Pad011")
pad12.Profile = sketch16
pad12.Length = 5

# Sketch on XY plane
sketch17 = body.newObject("Sketcher::SketchObject", "Sketch016")
sketch17.AttachmentSupport = (doc.getObject("XY_Plane"), [""])
sketch17.MapMode = "FlatFace"
sketch17.AttachmentOffset = App.Placement(App.Vector(0, 0, -148.575706), App.Rotation())
add_polygon(sketch17, [(78.688754, 57.333832), (78.688754, -7.324754), (21.311246, -7.324754), (21.311246, 57.333832)])  # lines 0-3
sketch17.addConstraint([
    Sketcher.Constraint("Vertical", 0),
    Sketcher.Constraint("Horizontal", 1),
    Sketcher.Constraint("Vertical", 2),
    Sketcher.Constraint("Horizontal", 3),
    Sketcher.Constraint("DistanceX", 1, 2, 1, 1, 57.377508),
    Sketcher.Constraint("DistanceY", 0, 2, 0, 1, 64.658586),
    Sketcher.Constraint("DistanceX", -1, 1, 0, 2, 78.688754),
    Sketcher.Constraint("DistanceY", 0, 2, -1, 1, 7.324754),
])
pad13 = body.newObject("PartDesign::Pad", "Pad012")
pad13.Profile = sketch17
pad13.Length = 1
pad13.Reversed = True

doc.recompute()
